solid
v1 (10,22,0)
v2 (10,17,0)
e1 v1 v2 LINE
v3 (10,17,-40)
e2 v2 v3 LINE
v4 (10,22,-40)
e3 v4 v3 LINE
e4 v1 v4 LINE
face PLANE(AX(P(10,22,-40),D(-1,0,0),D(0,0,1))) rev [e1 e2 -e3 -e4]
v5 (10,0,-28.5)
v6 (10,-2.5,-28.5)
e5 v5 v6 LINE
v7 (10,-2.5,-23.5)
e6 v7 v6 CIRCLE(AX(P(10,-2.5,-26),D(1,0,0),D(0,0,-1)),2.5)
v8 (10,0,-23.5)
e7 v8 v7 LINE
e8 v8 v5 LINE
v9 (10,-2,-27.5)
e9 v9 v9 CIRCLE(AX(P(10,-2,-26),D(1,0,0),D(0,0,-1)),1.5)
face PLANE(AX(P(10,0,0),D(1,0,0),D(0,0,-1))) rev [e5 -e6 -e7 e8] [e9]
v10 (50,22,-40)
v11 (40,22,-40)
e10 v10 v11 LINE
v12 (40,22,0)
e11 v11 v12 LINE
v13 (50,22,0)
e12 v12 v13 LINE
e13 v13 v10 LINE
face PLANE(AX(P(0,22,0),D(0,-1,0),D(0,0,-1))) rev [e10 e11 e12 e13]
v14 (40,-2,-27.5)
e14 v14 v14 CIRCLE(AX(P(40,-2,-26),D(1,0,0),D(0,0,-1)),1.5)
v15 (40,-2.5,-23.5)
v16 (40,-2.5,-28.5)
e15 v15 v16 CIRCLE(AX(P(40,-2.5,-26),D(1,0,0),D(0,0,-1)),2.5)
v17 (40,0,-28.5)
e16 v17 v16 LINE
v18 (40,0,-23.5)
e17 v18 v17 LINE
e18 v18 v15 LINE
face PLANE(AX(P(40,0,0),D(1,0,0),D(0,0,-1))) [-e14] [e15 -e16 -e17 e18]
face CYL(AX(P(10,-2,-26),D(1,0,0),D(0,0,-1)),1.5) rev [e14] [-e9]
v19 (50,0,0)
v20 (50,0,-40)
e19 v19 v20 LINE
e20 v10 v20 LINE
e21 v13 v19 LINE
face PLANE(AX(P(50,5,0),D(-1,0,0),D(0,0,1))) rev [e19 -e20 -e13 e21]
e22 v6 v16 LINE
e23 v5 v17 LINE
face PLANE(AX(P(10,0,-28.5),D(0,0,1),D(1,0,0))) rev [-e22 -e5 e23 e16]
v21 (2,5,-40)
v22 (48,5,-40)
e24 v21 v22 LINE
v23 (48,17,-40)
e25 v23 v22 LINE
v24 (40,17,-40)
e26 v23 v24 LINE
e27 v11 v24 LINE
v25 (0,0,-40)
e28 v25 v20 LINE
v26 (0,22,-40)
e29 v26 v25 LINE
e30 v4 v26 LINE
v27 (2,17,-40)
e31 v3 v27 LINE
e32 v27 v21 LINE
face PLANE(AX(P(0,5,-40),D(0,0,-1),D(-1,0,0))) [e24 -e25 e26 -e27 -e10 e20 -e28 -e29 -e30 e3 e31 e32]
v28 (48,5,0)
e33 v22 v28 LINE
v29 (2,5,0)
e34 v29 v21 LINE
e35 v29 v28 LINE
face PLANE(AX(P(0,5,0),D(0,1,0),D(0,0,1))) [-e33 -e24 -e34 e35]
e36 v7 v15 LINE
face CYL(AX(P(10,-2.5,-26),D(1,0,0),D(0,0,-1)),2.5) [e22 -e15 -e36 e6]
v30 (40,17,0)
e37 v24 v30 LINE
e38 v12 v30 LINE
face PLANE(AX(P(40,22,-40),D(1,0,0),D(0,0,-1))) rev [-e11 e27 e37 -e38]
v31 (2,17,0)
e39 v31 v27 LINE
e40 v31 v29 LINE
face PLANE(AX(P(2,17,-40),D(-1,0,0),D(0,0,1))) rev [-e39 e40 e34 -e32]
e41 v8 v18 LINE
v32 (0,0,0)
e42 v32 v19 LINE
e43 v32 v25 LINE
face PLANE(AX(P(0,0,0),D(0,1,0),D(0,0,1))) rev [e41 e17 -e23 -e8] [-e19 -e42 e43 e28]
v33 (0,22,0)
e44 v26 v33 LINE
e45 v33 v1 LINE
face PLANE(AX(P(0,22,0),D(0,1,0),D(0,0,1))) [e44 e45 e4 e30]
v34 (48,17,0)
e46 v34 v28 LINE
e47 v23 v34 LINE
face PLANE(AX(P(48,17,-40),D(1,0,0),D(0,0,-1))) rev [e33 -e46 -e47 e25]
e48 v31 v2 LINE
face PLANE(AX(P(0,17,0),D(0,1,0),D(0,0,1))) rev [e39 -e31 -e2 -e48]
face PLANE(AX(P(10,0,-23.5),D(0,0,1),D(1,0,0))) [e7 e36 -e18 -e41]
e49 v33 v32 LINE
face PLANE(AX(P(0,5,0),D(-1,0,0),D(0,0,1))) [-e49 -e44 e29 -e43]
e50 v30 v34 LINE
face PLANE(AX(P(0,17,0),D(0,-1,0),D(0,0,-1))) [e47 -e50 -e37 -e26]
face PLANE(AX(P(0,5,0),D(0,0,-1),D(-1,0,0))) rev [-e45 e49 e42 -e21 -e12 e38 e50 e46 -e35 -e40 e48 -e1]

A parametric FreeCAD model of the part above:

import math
import FreeCAD as App
import Part
import Sketcher

doc = App.newDocument("Part")
params = doc.addObject("Spreadsheet::Sheet", "Params")
for row, (alias, value) in enumerate([
    ("sketch1_width", "50 mm"),
    ("sketch1_height", "40 mm"),
    ("pad1_length", "5 mm"),
    ("sketch2_width", "2 mm"),
    ("sketch2_height", "40 mm"),
    ("pad2_length", "12 mm"),
    ("sketch3_width", "10 mm"),
    ("sketch3_height", "40 mm"),
    ("pad3_length", "5 mm"),
    ("sketch4_diameter", "3 mm"),
    ("sketch4_radius", "2.5 mm"),
    ("sketch4_width", "2.5 mm"),
    ("pad4_length", "15 mm"),
    ("pad4_length2", "15 mm"),
], start=1):
    params.set(f"A{row}", alias)
    params.set(f"B{row}", "=" + value)
    params.setAlias(f"B{row}", alias)

body = doc.addObject("PartDesign::Body", "Body")

# Sketch on XZ plane
sketch1 = body.newObject("Sketcher::SketchObject", "Sketch")
sketch1.AttachmentSupport = (doc.getObject("XZ_Plane"), [""])
sketch1.MapMode = "FlatFace"
sketch1.addGeometry(Part.LineSegment(App.Vector(0, -40, 0), App.Vector(0, 0, 0)), False)
sketch1.addGeometry(Part.LineSegment(App.Vector(0, 0, 0), App.Vector(50, 0, 0)), False)
sketch1.addGeometry(Part.LineSegment(App.Vector(50, 0, 0), App.Vector(50, -40, 0)), False)
sketch1.addGeometry(Part.LineSegment(App.Vector(50, -40, 0), App.Vector(0, -40, 0)), False)
sketch1.addConstraint(Sketcher.Constraint("Coincident", 0, 2, 1, 1))
sketch1.addConstraint(Sketcher.Constraint("Coincident", 1, 2, 2, 1))
sketch1.addConstraint(Sketcher.Constraint("Coincident", 2, 2, 3, 1))
sketch1.addConstraint(Sketcher.Constraint("Coincident", 3, 2, 0, 1))
sketch1.addConstraint(Sketcher.Constraint("Vertical", 0))
sketch1.addConstraint(Sketcher.Constraint("Horizontal", 1))
sketch1.addConstraint(Sketcher.Constraint("Vertical", 2))
sketch1.addConstraint(Sketcher.Constraint("Horizontal", 3))
sketch1.addConstraint(Sketcher.Constraint("Coincident", 0, 2, -1, 1))
sketch1.addConstraint(Sketcher.Constraint("DistanceX", 1, 1, 1, 2, 50.0))
sketch1.addConstraint(Sketcher.Constraint("DistanceY", 0, 1, 0, 2, 40.0))
sketch1.setExpression("Constraints[9]", "Params.sketch1_width")
sketch1.setExpression("Constraints[10]", "Params.sketch1_height")
pad1 = body.newObject("PartDesign::Pad", "Pad")
pad1.Profile = sketch1
pad1.setExpression("Length", "Params.pad1_length")
pad1.Reversed = True

# Sketch on XZ plane
sketch2 = body.newObject("Sketcher::SketchObject", "Sketch001")
sketch2.AttachmentSupport = (doc.getObject("XZ_Plane"), [""])
sketch2.MapMode = "FlatFace"
sketch2.AttachmentOffset = App.Placement(App.Vector(0, 0, -5), App.Rotation())
sketch2.addGeometry(Part.LineSegment(App.Vector(0, -40, 0), App.Vector(0, 0, 0)), False)
sketch2.addGeometry(Part.LineSegment(App.Vector(0, 0, 0), App.Vector(2, 0, 0)), False)
sketch2.addGeometry(Part.LineSegment(App.Vector(2, 0, 0), App.Vector(2, -40, 0)), False)
sketch2.addGeometry(Part.LineSegment(App.Vector(2, -40, 0), App.Vector(0, -40, 0)), False)
sketch2.addGeometry(Part.LineSegment(App.Vector(48, -40, 0), App.Vector(48, 0, 0)), False)
sketch2.addGeometry(Part.LineSegment(App.Vector(48, 0, 0), App.Vector(50, 0, 0)), False)
sketch2.addGeometry(Part.LineSegment(App.Vector(50, 0, 0), App.Vector(50, -40, 0)), False)
sketch2.addGeometry(Part.LineSegment(App.Vector(50, -40, 0), App.Vector(48, -40, 0)), False)
sketch2.addConstraint(Sketcher.Constraint("Coincident", 0, 2, 1, 1))
sketch2.addConstraint(Sketcher.Constraint("Coincident", 1, 2, 2, 1))
sketch2.addConstraint(Sketcher.Constraint("Coincident", 2, 2, 3, 1))
sketch2.addConstraint(Sketcher.Constraint("Coincident", 3, 2, 0, 1))
sketch2.addConstraint(Sketcher.Constraint("Coincident", 4, 2, 5, 1))
sketch2.addConstraint(Sketcher.Constraint("Coincident", 5, 2, 6, 1))
sketch2.addConstraint(Sketcher.Constraint("Coincident", 6, 2, 7, 1))
sketch2.addConstraint(Sketcher.Constraint("Coincident", 7, 2, 4, 1))
sketch2.addConstraint(Sketcher.Constraint("Vertical", 0))
sketch2.addConstraint(Sketcher.Constraint("Horizontal", 1))
sketch2.addConstraint(Sketcher.Constraint("Vertical", 2))
sketch2.addConstraint(Sketcher.Constraint("Horizontal", 3))
sketch2.addConstraint(Sketcher.Constraint("Vertical", 4))
sketch2.addConstraint(Sketcher.Constraint("Horizontal", 5))
sketch2.addConstraint(Sketcher.Constraint("Vertical", 6))
sketch2.addConstraint(Sketcher.Constraint("Horizontal", 7))
sketch2.addConstraint(Sketcher.Constraint("Coincident", 0, 2, -1, 1))
sketch2.addConstraint(Sketcher.Constraint("PointOnObject", 4, 2, -1))
sketch2.addConstraint(Sketcher.Constraint("Horizontal", 3, 2, 6, 2))
sketch2.addConstraint(Sketcher.Constraint("Equal", 3, 5))
sketch2.addConstraint(Sketcher.Constraint("DistanceX", 1, 1, 1, 2, 2.0))
sketch2.addConstraint(Sketcher.Constraint("DistanceY", 0, 1, 0, 2, 40.0))
sketch2.addConstraint(Sketcher.Constraint("DistanceX", -1, 1, 4, 2, 48.0))
sketch2.setExpression("Constraints[20]", "Params.sketch2_width")
sketch2.setExpression("Constraints[21]", "Params.sketch2_height")
pad2 = body.newObject("PartDesign::Pad", "Pad001")
pad2.Profile = sketch2
pad2.setExpression("Length", "Params.pad2_length")
pad2.Reversed = True

# Sketch on XZ plane
sketch3 = body.newObject("Sketcher::SketchObject", "Sketch002")
sketch3.AttachmentSupport = (doc.getObject("XZ_Plane"), [""])
sketch3.MapMode = "FlatFace"
sketch3.AttachmentOffset = App.Placement(App.Vector(0, 0, -17), App.Rotation())
sketch3.addGeometry(Part.LineSegment(App.Vector(0, -40, 0), App.Vector(0, 0, 0)), False)
sketch3.addGeometry(Part.LineSegment(App.Vector(0, 0, 0), App.Vector(10, 0, 0)), False)
sketch3.addGeometry(Part.LineSegment(App.Vector(10, 0, 0), App.Vector(10, -40, 0)), False)
sketch3.addGeometry(Part.LineSegment(App.Vector(10, -40, 0), App.Vector(0, -40, 0)), False)
sketch3.addGeometry(Part.LineSegment(App.Vector(40, -40, 0), App.Vector(40, 0, 0)), False)
sketch3.addGeometry(Part.LineSegment(App.Vector(40, 0, 0), App.Vector(50, 0, 0)), False)
sketch3.addGeometry(Part.LineSegment(App.Vector(50, 0, 0), App.Vector(50, -40, 0)), False)
sketch3.addGeometry(Part.LineSegment(App.Vector(50, -40, 0), App.Vector(40, -40, 0)), False)
sketch3.addConstraint(Sketcher.Constraint("Coincident", 0, 2, 1, 1))
sketch3.addConstraint(Sketcher.Constraint("Coincident", 1, 2, 2, 1))
sketch3.addConstraint(Sketcher.Constraint("Coincident", 2, 2, 3, 1))
sketch3.addConstraint(Sketcher.Constraint("Coincident", 3, 2, 0, 1))
sketch3.addConstraint(Sketcher.Constraint("Coincident", 4, 2, 5, 1))
sketch3.addConstraint(Sketcher.Constraint("Coincident", 5, 2, 6, 1))
sketch3.addConstraint(Sketcher.Constraint("Coincident", 6, 2, 7, 1))
sketch3.addConstraint(Sketcher.Constraint("Coincident", 7, 2, 4, 1))
sketch3.addConstraint(Sketcher.Constraint("Vertical", 0))
sketch3.addConstraint(Sketcher.Constraint("Horizontal", 1))
sketch3.addConstraint(Sketcher.Constraint("Vertical", 2))
sketch3.addConstraint(Sketcher.Constraint("Horizontal", 3))
sketch3.addConstraint(Sketcher.Constraint("Vertical", 4))
sketch3.addConstraint(Sketcher.Constraint("Horizontal", 5))
sketch3.addConstraint(Sketcher.Constraint("Vertical", 6))
sketch3.addConstraint(Sketcher.Constraint("Horizontal", 7))
sketch3.addConstraint(Sketcher.Constraint("Coincident", 0, 2, -1, 1))
sketch3.addConstraint(Sketcher.Constraint("PointOnObject", 4, 2, -1))
sketch3.addConstraint(Sketcher.Constraint("Horizontal", 3, 2, 6, 2))
sketch3.addConstraint(Sketcher.Constraint("Equal", 3, 5))
sketch3.addConstraint(Sketcher.Constraint("DistanceX", 1, 1, 1, 2, 10.0))
sketch3.addConstraint(Sketcher.Constraint("DistanceY", 0, 1, 0, 2, 40.0))
sketch3.addConstraint(Sketcher.Constraint("DistanceX", -1, 1, 4, 2, 40.0))
sketch3.setExpression("Constraints[20]", "Params.sketch3_width")
sketch3.setExpression("Constraints[21]", "Params.sketch3_height")
pad3 = body.newObject("PartDesign::Pad", "Pad002")
pad3.Profile = sketch3
pad3.setExpression("Length", "Params.pad3_length")
pad3.Reversed = True

# Sketch on YZ plane
sketch4 = body.newObject("Sketcher::SketchObject", "Sketch003")
sketch4.AttachmentSupport = (doc.getObject("YZ_Plane"), [""])
sketch4.MapMode = "FlatFace"
sketch4.AttachmentOffset = App.Placement(App.Vector(0, 0, 25), App.Rotation())
sketch4.addGeometry(Part.LineSegment(App.Vector(0, -23.5, 0), App.Vector(-2.5, -23.5, 0)), False)
sketch4.addGeometry(Part.ArcOfCircle(Part.Circle(App.Vector(-2.5, -26, 0), App.Vector(0, 0, 1), 2.5), math.radians(90), math.radians(270)), False)
sketch4.addGeometry(Part.LineSegment(App.Vector(-2.5, -28.5, 0), App.Vector(0, -28.5, 0)), False)
sketch4.addGeometry(Part.LineSegment(App.Vector(0, -28.5, 0), App.Vector(0, -23.5, 0)), False)
sketch4.addGeometry(Part.Circle(App.Vector(-2, -26, 0), App.Vector(0, 0, 1), 1.5), False)
sketch4.addConstraint(Sketcher.Constraint("Tangent", 0, 2, 1, 1))
sketch4.addConstraint(Sketcher.Constraint("Tangent", 1, 2, 2, 1))
sketch4.addConstraint(Sketcher.Constraint("Coincident", 2, 2, 3, 1))
sketch4.addConstraint(Sketcher.Constraint("Coincident", 3, 2, 0, 1))
sketch4.addConstraint(Sketcher.Constraint("Horizontal", 0))
sketch4.addConstraint(Sketcher.Constraint("Horizontal", 2))
sketch4.addConstraint(Sketcher.Constraint("Vertical", 3))
sketch4.addConstraint(Sketcher.Constraint("PointOnObject", 2, 2, -2))
sketch4.addConstraint(Sketcher.Constraint("Horizontal", 1, 3, 4, 3))
sketch4.addConstraint(Sketcher.Constraint("Diameter", 4, 3.0))
sketch4.addConstraint(Sketcher.Constraint("Radius", 1, 2.5))
sketch4.addConstraint(Sketcher.Constraint("DistanceX", 0, 2, 0, 1, 2.5))
sketch4.addConstraint(Sketcher.Constraint("DistanceY", 1, 3, -1, 1, 26.0))
sketch4.addConstraint(Sketcher.Constraint("DistanceX", 4, 3, -1, 1, 2.0))
sketch4.setExpression("Constraints[9]", "Params.sketch4_diameter")
sketch4.setExpression("Constraints[10]", "Params.sketch4_radius")
sketch4.setExpression("Constraints[11]", "Params.sketch4_width")
pad4 = body.newObject("PartDesign::Pad", "Pad003")
pad4.Profile = sketch4
pad4.Type = "TwoLengths"
pad4.setExpression("Length", "Params.pad4_length")
pad4.setExpression("Length2", "Params.pad4_length2")

doc.recompute()
